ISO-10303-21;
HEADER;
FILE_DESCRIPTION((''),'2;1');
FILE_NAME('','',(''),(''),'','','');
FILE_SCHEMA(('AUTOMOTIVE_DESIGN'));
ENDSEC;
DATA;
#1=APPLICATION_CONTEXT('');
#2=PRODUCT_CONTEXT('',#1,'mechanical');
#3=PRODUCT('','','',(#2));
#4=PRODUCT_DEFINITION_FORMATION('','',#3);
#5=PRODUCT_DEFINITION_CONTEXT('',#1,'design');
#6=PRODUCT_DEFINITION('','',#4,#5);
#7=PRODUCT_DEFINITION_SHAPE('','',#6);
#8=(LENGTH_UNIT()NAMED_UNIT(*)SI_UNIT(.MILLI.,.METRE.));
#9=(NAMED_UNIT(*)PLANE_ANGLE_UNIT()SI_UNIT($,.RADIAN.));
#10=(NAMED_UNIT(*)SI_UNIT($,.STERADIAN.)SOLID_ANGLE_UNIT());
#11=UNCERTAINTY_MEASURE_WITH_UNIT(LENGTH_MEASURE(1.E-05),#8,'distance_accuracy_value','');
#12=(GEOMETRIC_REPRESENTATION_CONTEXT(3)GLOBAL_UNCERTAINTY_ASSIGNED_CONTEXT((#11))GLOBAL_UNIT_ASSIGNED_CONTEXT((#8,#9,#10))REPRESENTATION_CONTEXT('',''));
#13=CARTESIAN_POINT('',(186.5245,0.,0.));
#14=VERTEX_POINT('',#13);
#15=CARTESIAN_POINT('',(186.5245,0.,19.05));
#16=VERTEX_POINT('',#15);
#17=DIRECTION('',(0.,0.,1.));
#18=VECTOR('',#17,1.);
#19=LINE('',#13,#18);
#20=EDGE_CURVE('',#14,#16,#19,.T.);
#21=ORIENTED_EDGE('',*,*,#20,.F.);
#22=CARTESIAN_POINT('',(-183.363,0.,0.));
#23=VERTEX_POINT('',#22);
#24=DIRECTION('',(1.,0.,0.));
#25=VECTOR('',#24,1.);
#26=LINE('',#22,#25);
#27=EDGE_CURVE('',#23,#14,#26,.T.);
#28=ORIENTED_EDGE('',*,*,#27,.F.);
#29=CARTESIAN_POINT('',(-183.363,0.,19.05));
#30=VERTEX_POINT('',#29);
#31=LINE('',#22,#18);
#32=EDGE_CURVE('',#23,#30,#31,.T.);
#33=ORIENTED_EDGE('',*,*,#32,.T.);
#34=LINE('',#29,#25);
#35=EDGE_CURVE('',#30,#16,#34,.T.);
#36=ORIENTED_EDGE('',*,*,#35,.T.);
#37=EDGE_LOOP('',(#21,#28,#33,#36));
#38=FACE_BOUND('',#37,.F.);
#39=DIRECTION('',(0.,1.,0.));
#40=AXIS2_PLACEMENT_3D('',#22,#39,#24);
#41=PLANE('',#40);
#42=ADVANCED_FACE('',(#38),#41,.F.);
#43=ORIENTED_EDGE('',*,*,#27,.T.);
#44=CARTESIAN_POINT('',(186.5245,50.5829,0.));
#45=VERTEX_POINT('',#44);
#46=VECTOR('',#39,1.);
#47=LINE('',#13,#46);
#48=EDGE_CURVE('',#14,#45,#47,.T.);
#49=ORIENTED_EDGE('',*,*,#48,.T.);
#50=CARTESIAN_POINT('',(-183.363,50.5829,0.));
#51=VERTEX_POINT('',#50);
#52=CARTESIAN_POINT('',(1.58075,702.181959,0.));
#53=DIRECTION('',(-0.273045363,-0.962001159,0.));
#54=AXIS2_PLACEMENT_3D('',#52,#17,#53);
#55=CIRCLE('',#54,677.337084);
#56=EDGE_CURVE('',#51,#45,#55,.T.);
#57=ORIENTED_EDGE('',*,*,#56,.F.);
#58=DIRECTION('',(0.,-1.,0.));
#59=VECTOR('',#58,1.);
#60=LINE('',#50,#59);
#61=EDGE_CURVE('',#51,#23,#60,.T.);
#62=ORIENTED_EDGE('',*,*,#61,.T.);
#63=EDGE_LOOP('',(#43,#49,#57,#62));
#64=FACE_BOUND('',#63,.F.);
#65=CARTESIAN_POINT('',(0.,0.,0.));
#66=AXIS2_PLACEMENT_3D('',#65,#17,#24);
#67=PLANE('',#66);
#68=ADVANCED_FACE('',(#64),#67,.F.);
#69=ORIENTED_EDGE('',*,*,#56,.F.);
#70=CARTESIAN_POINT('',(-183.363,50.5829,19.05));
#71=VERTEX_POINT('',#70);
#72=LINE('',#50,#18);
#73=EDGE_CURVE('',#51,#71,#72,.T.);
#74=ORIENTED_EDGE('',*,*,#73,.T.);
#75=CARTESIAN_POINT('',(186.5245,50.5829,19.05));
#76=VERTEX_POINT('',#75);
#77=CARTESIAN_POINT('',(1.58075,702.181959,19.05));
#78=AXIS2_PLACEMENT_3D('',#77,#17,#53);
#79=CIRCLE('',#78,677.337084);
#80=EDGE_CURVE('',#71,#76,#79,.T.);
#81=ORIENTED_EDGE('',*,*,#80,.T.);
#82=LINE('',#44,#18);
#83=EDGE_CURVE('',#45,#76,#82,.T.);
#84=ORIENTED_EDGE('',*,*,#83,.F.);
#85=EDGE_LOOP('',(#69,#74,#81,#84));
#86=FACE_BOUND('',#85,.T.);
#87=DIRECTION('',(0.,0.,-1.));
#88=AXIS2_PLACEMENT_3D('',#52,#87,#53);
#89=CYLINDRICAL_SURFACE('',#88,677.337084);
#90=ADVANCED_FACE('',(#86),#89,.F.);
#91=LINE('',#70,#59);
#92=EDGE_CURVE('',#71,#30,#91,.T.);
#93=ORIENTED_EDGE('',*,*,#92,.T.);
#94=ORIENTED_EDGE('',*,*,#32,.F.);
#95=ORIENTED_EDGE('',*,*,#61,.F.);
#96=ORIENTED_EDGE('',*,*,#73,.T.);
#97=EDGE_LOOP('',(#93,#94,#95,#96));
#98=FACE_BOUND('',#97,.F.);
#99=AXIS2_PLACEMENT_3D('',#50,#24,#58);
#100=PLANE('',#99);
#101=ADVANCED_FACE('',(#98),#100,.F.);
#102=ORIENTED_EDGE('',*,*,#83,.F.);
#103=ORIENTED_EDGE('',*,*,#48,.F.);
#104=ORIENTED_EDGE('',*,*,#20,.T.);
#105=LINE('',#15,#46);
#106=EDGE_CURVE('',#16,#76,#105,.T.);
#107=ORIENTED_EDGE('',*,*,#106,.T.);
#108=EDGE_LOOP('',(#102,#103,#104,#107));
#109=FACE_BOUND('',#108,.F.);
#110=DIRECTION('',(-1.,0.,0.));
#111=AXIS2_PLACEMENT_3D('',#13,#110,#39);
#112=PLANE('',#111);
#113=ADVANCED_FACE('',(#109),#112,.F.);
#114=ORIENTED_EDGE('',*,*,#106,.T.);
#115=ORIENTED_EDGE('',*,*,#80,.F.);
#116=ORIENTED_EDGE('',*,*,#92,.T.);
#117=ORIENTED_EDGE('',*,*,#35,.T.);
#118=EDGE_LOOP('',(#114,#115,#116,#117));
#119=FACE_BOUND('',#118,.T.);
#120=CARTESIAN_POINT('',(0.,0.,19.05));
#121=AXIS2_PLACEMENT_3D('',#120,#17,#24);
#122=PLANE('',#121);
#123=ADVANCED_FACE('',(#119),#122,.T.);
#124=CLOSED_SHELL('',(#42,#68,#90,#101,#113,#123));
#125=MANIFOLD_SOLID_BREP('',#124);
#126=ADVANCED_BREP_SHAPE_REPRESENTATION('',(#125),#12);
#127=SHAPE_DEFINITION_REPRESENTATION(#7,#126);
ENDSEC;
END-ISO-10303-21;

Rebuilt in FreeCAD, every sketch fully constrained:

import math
import FreeCAD as App
import Part
import Sketcher
Q = App.Units.Quantity

doc = App.newDocument("Part")
params = doc.addObject("Spreadsheet::Sheet", "Params")
for row, (alias, value) in enumerate([
    ("sketch1_width", "14.5625 in"),
    ("pad1_length", "0.75 in"),
], start=1):
    params.set(f"A{row}", alias)
    params.set(f"B{row}", "=" + value)
    params.setAlias(f"B{row}", alias)

body = doc.addObject("PartDesign::Body", "Body")

# Sketch on XY plane
sketch1 = doc.addObject("Sketcher::SketchObject", "Sketch")
body.addObject(sketch1)
sketch1.AttachmentSupport = (doc.XY_Plane, [""])
sketch1.MapMode = "FlatFace"
sketch1.addGeometry([
    Part.LineSegment(App.Vector(-183, 51, 0), App.Vector(-183, 0, 0)),
    Part.LineSegment(App.Vector(-183, 0, 0), App.Vector(187, 0, 0)),
    Part.LineSegment(App.Vector(187, 0, 0), App.Vector(187, 51, 0)),
    Part.ArcOfCircle(Part.Circle(App.Vector(2, 702, 0), App.Vector(0, 0, 1), 677), math.radians(-106), math.radians(-74)),
], False)
sketch1.addConstraint([
    Sketcher.Constraint("Coincident", 0, 2, 1, 1),
    Sketcher.Constraint("Coincident", 1, 2, 2, 1),
    Sketcher.Constraint("Coincident", 2, 2, 3, 2),
    Sketcher.Constraint("Coincident", 3, 1, 0, 1),
    Sketcher.Constraint("Vertical", 0),
    Sketcher.Constraint("Horizontal", 1),
    Sketcher.Constraint("Vertical", 2),
    Sketcher.Constraint("PointOnObject", 0, 2, -1),
    Sketcher.Constraint("Horizontal", 2, 2, 3, 1),
    Sketcher.Constraint("DistanceX", 1, 1, 1, 2, Q("14.5625 in")),
    Sketcher.Constraint("DistanceY", 0, 2, 0, 1, 50.583),
    Sketcher.Constraint("Radius", 3, Q("26.6668 in")),
    Sketcher.Constraint("DistanceX", -1, 1, 3, 3, 1.5807),
])
sketch1.setExpression("Constraints[9]", "Params.sketch1_width")
pad1 = doc.addObject("PartDesign::Pad", "Pad")
body.addObject(pad1)
pad1.Profile = sketch1
pad1.setExpression("Length", "Params.pad1_length")

doc.recompute()
